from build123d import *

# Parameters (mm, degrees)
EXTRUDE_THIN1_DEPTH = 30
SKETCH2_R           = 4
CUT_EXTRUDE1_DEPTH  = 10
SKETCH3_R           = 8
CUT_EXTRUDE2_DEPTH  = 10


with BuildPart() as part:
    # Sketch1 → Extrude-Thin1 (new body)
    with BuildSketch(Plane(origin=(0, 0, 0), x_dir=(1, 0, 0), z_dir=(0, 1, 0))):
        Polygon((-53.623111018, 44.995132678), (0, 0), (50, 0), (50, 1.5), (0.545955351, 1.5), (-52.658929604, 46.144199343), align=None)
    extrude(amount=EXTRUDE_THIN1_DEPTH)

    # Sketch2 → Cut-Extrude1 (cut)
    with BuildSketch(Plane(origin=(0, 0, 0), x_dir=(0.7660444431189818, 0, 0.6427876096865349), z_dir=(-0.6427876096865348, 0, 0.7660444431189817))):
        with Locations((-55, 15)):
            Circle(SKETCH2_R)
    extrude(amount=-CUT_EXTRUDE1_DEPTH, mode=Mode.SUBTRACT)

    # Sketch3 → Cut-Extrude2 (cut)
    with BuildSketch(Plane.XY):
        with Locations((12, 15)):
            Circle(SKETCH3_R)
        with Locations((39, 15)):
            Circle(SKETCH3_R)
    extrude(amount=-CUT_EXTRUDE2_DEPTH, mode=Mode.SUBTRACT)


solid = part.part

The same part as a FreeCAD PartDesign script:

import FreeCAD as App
import Part
import Sketcher
Q = App.Units.Quantity


def add_polygon(sketch, points):
    """Adds a closed chain of lines whose ends are joined by coincident constraints."""
    first, n = sketch.GeometryCount, len(points)
    for a, b in zip(points, points[1:] + points[:1]):
        sketch.addGeometry(Part.LineSegment(App.Vector(*a, 0), App.Vector(*b, 0)), False)
    for i in range(n):
        sketch.addConstraint(Sketcher.Constraint("Coincident", first + i, 2, first + (i + 1) % n, 1))

doc = App.newDocument("Part")
params = doc.addObject("Spreadsheet::Sheet", "Params")
for row, (alias, value) in enumerate([
    ("sketch1_width", "50 mm"),
    ("sketch1_length", "70 mm"),
    ("sketch1_height", "1.5 mm"),
    ("sketch1_length2", "1.5 mm"),
    ("pad1_length", "30 mm"),
    ("sketch2_diameter", "8 mm"),
    ("pocket1_length", "10 mm"),
    ("sketch3_diameter", "16 mm"),
    ("pocket2_length", "10 mm"),
], start=1):
    params.set(f"A{row}", alias)
    params.set(f"B{row}", "=" + value)
    params.setAlias(f"B{row}", alias)

body = doc.addObject("PartDesign::Body", "Body")

sketch1 = body.newObject("Sketcher::SketchObject", "Sketch")
sketch1.AttachmentSupport = (doc.getObject("XZ_Plane"), [""])
sketch1.MapMode = "FlatFace"
add_polygon(sketch1, [(-53.6, -45), (0, 0), (50, 0), (50, -1.5), (0.5, -1.5), (-52.7, -46.1)])
sketch1.addConstraint(Sketcher.Constraint("Horizontal", 1))
sketch1.addConstraint(Sketcher.Constraint("Vertical", 2))
sketch1.addConstraint(Sketcher.Constraint("Horizontal", 3))
sketch1.addConstraint(Sketcher.Constraint("Coincident", 0, 2, -1, 1))
sketch1.addConstraint(Sketcher.Constraint("Parallel", 0, 4))
sketch1.addConstraint(Sketcher.Constraint("Perpendicular", 4, 5))
sketch1.addConstraint(Sketcher.Constraint("DistanceX", 1, 1, 1, 2, 50.0))
sketch1.addConstraint(Sketcher.Constraint("Angle", 0, Q("40 deg")))
sketch1.addConstraint(Sketcher.Constraint("Distance", 0, 70.0))
sketch1.addConstraint(Sketcher.Constraint("DistanceY", 2, 2, 2, 1, 1.5))
sketch1.addConstraint(Sketcher.Constraint("Distance", 5, 1.5))
sketch1.setExpression("Constraints[12]", "Params.sketch1_width")
sketch1.setExpression("Constraints[14]", "Params.sketch1_length")
sketch1.setExpression("Constraints[15]", "Params.sketch1_height")
sketch1.setExpression("Constraints[16]", "Params.sketch1_length2")
pad1 = body.newObject("PartDesign::Pad", "Pad")
pad1.Profile = sketch1
pad1.setExpression("Length", "Params.pad1_length")
pad1.Reversed = True

sketch2 = body.newObject("Sketcher::SketchObject", "Sketch001")
sketch2.Placement = App.Placement(App.Vector(0, 0, 0), App.Rotation(App.Vector(0.766044443, 0, 0.64278761), App.Vector(0, 1, 0), App.Vector(-0.64278761, 0, 0.766044443), "ZXY"))
sketch2.addGeometry(Part.Circle(App.Vector(-55, 15, 0), App.Vector(0, 0, 1), 4), False)
sketch2.addConstraint(Sketcher.Constraint("Diameter", 0, 8.0))
sketch2.addConstraint(Sketcher.Constraint("DistanceX", 0, 3, -1, 1, 55.0))
sketch2.addConstraint(Sketcher.Constraint("DistanceY", -1, 1, 0, 3, 15.0))
sketch2.setExpression("Constraints[0]", "Params.sketch2_diameter")
pocket1 = body.newObject("PartDesign::Pocket", "Pocket")
pocket1.Profile = sketch2
pocket1.setExpression("Length", "Params.pocket1_length")

sketch3 = body.newObject("Sketcher::SketchObject", "Sketch002")
sketch3.AttachmentSupport = (doc.getObject("XY_Plane"), [""])
sketch3.MapMode = "FlatFace"
sketch3.addGeometry(Part.Circle(App.Vector(12, 15, 0), App.Vector(0, 0, 1), 8), False)
sketch3.addGeometry(Part.Circle(App.Vector(39, 15, 0), App.Vector(0, 0, 1), 8), False)
sketch3.addConstraint(Sketcher.Constraint("Equal", 0, 1))
sketch3.addConstraint(Sketcher.Constraint("Horizontal", 0, 3, 1, 3))
sketch3.addConstraint(Sketcher.Constraint("Diameter", 0, 16.0))
sketch3.addConstraint(Sketcher.Constraint("DistanceX", -1, 1, 0, 3, 12.0))
sketch3.addConstraint(Sketcher.Constraint("DistanceY", -1, 1, 0, 3, 15.0))
sketch3.addConstraint(Sketcher.Constraint("DistanceX", -1, 1, 1, 3, 39.0))
sketch3.setExpression("Constraints[2]", "Params.sketch3_diameter")
pocket2 = body.newObject("PartDesign::Pocket", "Pocket001")
pocket2.Profile = sketch3
pocket2.setExpression("Length", "Params.pocket2_length")

doc.recompute()
